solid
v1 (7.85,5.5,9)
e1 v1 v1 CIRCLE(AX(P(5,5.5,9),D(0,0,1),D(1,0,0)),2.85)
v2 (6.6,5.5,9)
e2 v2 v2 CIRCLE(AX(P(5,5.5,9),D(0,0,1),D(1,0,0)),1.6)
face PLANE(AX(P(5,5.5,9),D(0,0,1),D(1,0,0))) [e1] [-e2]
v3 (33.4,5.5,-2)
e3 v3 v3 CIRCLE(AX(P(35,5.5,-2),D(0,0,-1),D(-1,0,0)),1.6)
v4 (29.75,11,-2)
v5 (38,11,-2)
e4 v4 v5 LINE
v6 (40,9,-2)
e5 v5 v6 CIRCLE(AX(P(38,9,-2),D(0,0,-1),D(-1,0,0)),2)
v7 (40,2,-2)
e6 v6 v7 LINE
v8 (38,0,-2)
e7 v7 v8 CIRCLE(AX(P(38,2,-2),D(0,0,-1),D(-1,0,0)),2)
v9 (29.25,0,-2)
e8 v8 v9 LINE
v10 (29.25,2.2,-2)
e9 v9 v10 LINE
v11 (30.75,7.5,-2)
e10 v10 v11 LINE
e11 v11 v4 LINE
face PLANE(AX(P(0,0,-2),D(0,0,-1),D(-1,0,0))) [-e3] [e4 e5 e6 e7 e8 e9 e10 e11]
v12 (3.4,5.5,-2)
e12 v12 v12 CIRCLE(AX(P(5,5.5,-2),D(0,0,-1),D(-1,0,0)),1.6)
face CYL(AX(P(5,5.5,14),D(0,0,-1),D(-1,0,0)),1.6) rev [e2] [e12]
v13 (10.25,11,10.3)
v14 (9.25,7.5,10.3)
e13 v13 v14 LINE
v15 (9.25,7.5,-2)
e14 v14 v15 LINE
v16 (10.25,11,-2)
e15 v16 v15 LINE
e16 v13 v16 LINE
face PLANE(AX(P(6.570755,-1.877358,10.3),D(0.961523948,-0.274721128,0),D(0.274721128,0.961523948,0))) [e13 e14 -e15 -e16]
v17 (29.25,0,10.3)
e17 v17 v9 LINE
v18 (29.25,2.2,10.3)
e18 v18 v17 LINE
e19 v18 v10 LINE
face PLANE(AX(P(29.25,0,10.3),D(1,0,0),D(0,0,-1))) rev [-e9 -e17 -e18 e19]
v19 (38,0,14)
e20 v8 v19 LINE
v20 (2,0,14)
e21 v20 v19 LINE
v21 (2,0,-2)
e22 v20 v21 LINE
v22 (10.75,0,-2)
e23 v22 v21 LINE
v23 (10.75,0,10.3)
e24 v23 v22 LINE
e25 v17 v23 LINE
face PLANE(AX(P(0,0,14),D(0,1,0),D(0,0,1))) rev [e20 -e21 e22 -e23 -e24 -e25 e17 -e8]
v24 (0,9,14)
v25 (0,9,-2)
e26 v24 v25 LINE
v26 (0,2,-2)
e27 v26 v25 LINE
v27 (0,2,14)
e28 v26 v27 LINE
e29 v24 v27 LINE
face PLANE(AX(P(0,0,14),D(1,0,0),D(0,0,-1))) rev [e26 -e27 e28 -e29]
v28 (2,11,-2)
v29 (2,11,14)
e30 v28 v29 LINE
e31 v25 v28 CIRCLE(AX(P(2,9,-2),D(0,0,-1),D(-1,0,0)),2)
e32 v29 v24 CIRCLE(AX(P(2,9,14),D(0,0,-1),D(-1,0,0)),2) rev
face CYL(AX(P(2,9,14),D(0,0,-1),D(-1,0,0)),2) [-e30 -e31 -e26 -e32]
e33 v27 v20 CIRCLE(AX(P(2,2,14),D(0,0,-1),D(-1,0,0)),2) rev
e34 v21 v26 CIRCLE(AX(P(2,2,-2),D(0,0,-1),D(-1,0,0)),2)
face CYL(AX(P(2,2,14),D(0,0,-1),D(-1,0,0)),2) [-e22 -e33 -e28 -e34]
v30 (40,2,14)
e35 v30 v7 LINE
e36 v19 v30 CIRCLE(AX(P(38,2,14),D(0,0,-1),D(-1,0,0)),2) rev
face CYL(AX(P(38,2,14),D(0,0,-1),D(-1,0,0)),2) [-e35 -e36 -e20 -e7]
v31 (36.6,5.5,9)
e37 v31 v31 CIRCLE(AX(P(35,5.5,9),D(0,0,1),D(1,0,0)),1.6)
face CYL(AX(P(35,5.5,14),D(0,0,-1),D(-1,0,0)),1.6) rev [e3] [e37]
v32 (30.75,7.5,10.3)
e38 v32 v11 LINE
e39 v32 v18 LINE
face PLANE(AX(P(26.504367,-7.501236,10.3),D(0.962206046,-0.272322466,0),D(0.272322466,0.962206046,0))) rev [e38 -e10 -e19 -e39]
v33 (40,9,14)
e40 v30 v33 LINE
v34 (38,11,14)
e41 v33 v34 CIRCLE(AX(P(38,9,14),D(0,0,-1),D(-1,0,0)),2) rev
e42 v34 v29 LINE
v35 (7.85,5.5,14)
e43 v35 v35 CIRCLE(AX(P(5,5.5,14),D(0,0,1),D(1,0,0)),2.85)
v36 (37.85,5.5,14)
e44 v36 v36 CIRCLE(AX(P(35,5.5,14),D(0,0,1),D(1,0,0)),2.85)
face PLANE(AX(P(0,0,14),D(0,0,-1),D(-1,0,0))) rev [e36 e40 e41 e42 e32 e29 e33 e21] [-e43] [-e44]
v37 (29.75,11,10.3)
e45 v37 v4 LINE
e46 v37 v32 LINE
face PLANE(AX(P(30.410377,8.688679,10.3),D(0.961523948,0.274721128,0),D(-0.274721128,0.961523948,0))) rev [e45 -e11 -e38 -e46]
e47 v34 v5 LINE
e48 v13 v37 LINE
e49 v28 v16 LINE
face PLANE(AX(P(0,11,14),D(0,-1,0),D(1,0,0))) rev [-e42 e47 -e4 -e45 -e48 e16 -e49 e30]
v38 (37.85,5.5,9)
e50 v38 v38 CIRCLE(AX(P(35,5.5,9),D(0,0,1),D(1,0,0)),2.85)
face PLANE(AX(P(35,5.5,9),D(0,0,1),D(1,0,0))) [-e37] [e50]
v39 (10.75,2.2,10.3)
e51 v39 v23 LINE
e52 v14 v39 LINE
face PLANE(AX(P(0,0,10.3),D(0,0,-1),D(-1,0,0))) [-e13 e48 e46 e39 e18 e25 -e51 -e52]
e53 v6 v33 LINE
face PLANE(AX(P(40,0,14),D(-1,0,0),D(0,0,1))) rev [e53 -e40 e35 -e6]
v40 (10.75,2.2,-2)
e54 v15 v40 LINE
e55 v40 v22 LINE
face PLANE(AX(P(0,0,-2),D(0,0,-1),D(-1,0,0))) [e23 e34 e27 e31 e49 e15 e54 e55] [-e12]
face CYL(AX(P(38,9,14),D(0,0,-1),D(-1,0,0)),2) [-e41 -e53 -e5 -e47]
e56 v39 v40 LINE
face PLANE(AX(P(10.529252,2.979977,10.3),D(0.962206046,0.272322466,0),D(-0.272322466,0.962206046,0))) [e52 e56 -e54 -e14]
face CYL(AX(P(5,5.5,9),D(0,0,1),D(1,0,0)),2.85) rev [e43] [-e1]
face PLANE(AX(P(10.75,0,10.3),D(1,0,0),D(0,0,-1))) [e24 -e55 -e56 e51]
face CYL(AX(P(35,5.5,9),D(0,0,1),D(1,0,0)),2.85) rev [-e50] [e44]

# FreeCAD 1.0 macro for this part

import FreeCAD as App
import Part
import Sketcher

V = App.Vector


def edges_at(feature, points):
    """Names of the edges that pass closest to the given points."""
    edges = feature.Shape.Edges
    near = lambda p: min(range(len(edges)), key=lambda i: edges[i].distToShape(Part.Vertex(*p))[0])
    return sorted({f"Edge{near(p) + 1}" for p in points})


def add_polygon(sketch, points):
    """Adds a closed chain of lines whose ends are joined by coincident constraints."""
    first, n = sketch.GeometryCount, len(points)
    for a, b in zip(points, points[1:] + points[:1]):
        sketch.addGeometry(Part.LineSegment(App.Vector(*a, 0), App.Vector(*b, 0)), False)
    for i in range(n):
        sketch.addConstraint(Sketcher.Constraint("Coincident", first + i, 2, first + (i + 1) % n, 1))

doc = App.newDocument("Part")
params = doc.addObject("Spreadsheet::Sheet", "Params")
for row, (alias, value) in enumerate([
    ("sketch1_diameter", "3.2 mm"),
    ("sketch1_width", "40 mm"),
    ("sketch1_height", "11 mm"),
    ("pad1_length", "14 mm"),
    ("sketch2_width", "19.5 mm"),
    ("sketch2_width2", "18.5 mm"),
    ("sketch2_height", "2.2 mm"),
    ("pocket1_length", "10.3 mm"),
    ("sketch3_diameter", "5.7 mm"),
    ("pocket2_length", "5 mm"),
    ("sketch4_diameter", "3.2 mm"),
    ("sketch4_height", "11 mm"),
    ("sketch4_height2", "2.2 mm"),
    ("sketch4_width", "10.75 mm"),
    ("pad2_length", "2 mm"),
    ("fillet_radius", "2 mm"),
], start=1):
    params.set(f"A{row}", alias)
    params.set(f"B{row}", "=" + value)
    params.setAlias(f"B{row}", alias)

body = doc.addObject("PartDesign::Body", "Body")

# Sketch on XY plane
sketch1 = body.newObject("Sketcher::SketchObject", "Sketch")
sketch1.AttachmentSupport = (doc.getObject("XY_Plane"), [""])
sketch1.MapMode = "FlatFace"
add_polygon(sketch1, [(0, 11), (0, 0), (40, 0), (40, 11)])  # lines 0-3
sketch1.addGeometry(Part.Circle(V(5, 5.5, 0), V(0, 0, 1), 1.6), False)  # 4
sketch1.addGeometry(Part.Circle(V(35, 5.5, 0), V(0, 0, 1), 1.6), False)  # 5
sketch1.addConstraint(Sketcher.Constraint("Vertical", 0))
sketch1.addConstraint(Sketcher.Constraint("Horizontal", 1))
sketch1.addConstraint(Sketcher.Constraint("Vertical", 2))
sketch1.addConstraint(Sketcher.Constraint("Horizontal", 3))
sketch1.addConstraint(Sketcher.Constraint("Coincident", 0, 2, -1, 1))
sketch1.addConstraint(Sketcher.Constraint("Equal", 4, 5))
sketch1.addConstraint(Sketcher.Constraint("Horizontal", 4, 3, 5, 3))
sketch1.addConstraint(Sketcher.Constraint("Diameter", 4, 3.2))
sketch1.addConstraint(Sketcher.Constraint("DistanceX", 1, 1, 1, 2, 40.0))
sketch1.addConstraint(Sketcher.Constraint("DistanceY", 0, 2, 0, 1, 11.0))
sketch1.addConstraint(Sketcher.Constraint("DistanceX", -1, 1, 4, 3, 5.0))
sketch1.addConstraint(Sketcher.Constraint("DistanceX", -1, 1, 5, 3, 35.0))
sketch1.addConstraint(Sketcher.Constraint("DistanceY", -1, 1, 4, 3, 5.5))
sketch1.setExpression("Constraints[11]", "Params.sketch1_diameter")
sketch1.setExpression("Constraints[12]", "Params.sketch1_width")
sketch1.setExpression("Constraints[13]", "Params.sketch1_height")
pad1 = body.newObject("PartDesign::Pad", "Pad")
pad1.Profile = sketch1
pad1.setExpression("Length", "Params.pad1_length")

# Sketch on XY plane
sketch2 = body.newObject("Sketcher::SketchObject", "Sketch001")
sketch2.AttachmentSupport = (doc.getObject("XY_Plane"), [""])
sketch2.MapMode = "FlatFace"
add_polygon(sketch2, [(10.2, 11), (29.8, 11), (30.8, 7.5), (29.2, 2.2), (29.2, 0), (10.8, 0), (10.8, 2.2), (9.2, 7.5)])  # lines 0-7
sketch2.addConstraint(Sketcher.Constraint("Horizontal", 0))
sketch2.addConstraint(Sketcher.Constraint("Vertical", 3))
sketch2.addConstraint(Sketcher.Constraint("Horizontal", 4))
sketch2.addConstraint(Sketcher.Constraint("Vertical", 5))
sketch2.addConstraint(Sketcher.Constraint("PointOnObject", 3, 2, -1))
sketch2.addConstraint(Sketcher.Constraint("Horizontal", 2, 2, 5, 2))
sketch2.addConstraint(Sketcher.Constraint("Horizontal", 1, 2, 6, 2))
sketch2.addConstraint(Sketcher.Constraint("Equal", 2, 6))
sketch2.addConstraint(Sketcher.Constraint("Equal", 1, 7))
sketch2.addConstraint(Sketcher.Constraint("DistanceX", 0, 1, 0, 2, 19.5))
sketch2.addConstraint(Sketcher.Constraint("DistanceX", 4, 2, 4, 1, 18.5))
sketch2.addConstraint(Sketcher.Constraint("DistanceY", 3, 2, 3, 1, 2.2))
sketch2.addConstraint(Sketcher.Constraint("DistanceY", -1, 1, 0, 2, 11.0))
sketch2.addConstraint(Sketcher.Constraint("DistanceX", 0, 2, 1, 2, 1.0))
sketch2.addConstraint(Sketcher.Constraint("DistanceY", -1, 1, 1, 2, 7.5))
sketch2.addConstraint(Sketcher.Constraint("DistanceX", -1, 1, 0, 2, 29.75))
sketch2.setExpression("Constraints[17]", "Params.sketch2_width")
sketch2.setExpression("Constraints[18]", "Params.sketch2_width2")
sketch2.setExpression("Constraints[19]", "Params.sketch2_height")
pocket1 = body.newObject("PartDesign::Pocket", "Pocket")
pocket1.Profile = sketch2
pocket1.setExpression("Length", "Params.pocket1_length")
pocket1.Reversed = True

# Sketch on XY plane
sketch3 = body.newObject("Sketcher::SketchObject", "Sketch002")
sketch3.AttachmentSupport = (doc.getObject("XY_Plane"), [""])
sketch3.MapMode = "FlatFace"
sketch3.AttachmentOffset = App.Placement(V(0, 0, 14), App.Rotation())
sketch3.addGeometry(Part.Circle(V(5, 5.5, 0), V(0, 0, 1), 2.9), False)
sketch3.addGeometry(Part.Circle(V(35, 5.5, 0), V(0, 0, 1), 2.9), False)
sketch3.addConstraint(Sketcher.Constraint("Equal", 0, 1))
sketch3.addConstraint(Sketcher.Constraint("Horizontal", 0, 3, 1, 3))
sketch3.addConstraint(Sketcher.Constraint("Diameter", 0, 5.7))
sketch3.addConstraint(Sketcher.Constraint("DistanceX", -1, 1, 0, 3, 5.0))
sketch3.addConstraint(Sketcher.Constraint("DistanceX", -1, 1, 1, 3, 35.0))
sketch3.addConstraint(Sketcher.Constraint("DistanceY", -1, 1, 0, 3, 5.5))
sketch3.setExpression("Constraints[2]", "Params.sketch3_diameter")
pocket2 = body.newObject("PartDesign::Pocket", "Pocket001")
pocket2.Profile = sketch3
pocket2.setExpression("Length", "Params.pocket2_length")

# Sketch on XY plane
sketch4 = body.newObject("Sketcher::SketchObject", "Sketch003")
sketch4.AttachmentSupport = (doc.getObject("XY_Plane"), [""])
sketch4.MapMode = "FlatFace"
sketch4.AttachmentOffset = App.Placement(V(0, 0, -2), App.Rotation())
add_polygon(sketch4, [(10.2, 11), (9.2, 7.5), (10.8, 2.2), (10.8, 0), (0, 0), (0, 11)])  # lines 0-5
sketch4.addGeometry(Part.Circle(V(5, 5.5, 0), V(0, 0, 1), 1.6), False)  # 6
add_polygon(sketch4, [(30.8, 7.5), (29.8, 11), (40, 11), (40, 0), (29.2, 0), (29.2, 2.2)])  # lines 7-12
sketch4.addGeometry(Part.Circle(V(35, 5.5, 0), V(0, 0, 1), 1.6), False)  # 13
sketch4.addConstraint(Sketcher.Constraint("Vertical", 2))
sketch4.addConstraint(Sketcher.Constraint("Horizontal", 3))
sketch4.addConstraint(Sketcher.Constraint("Vertical", 4))
sketch4.addConstraint(Sketcher.Constraint("Horizontal", 5))
sketch4.addConstraint(Sketcher.Constraint("Horizontal", 8))
sketch4.addConstraint(Sketcher.Constraint("Vertical", 9))
sketch4.addConstraint(Sketcher.Constraint("Horizontal", 10))
sketch4.addConstraint(Sketcher.Constraint("Vertical", 11))
sketch4.addConstraint(Sketcher.Constraint("Coincident", 3, 2, -1, 1))
sketch4.addConstraint(Sketcher.Constraint("Equal", 6, 13))
sketch4.addConstraint(Sketcher.Constraint("PointOnObject", 9, 2, -1))
sketch4.addConstraint(Sketcher.Constraint("Horizontal", 6, 3, 13, 3))
sketch4.addConstraint(Sketcher.Constraint("Horizontal", 5, 2, 7, 2))
sketch4.addConstraint(Sketcher.Constraint("Horizontal", 1, 2, 11, 2))
sketch4.addConstraint(Sketcher.Constraint("Horizontal", 0, 2, 12, 2))
sketch4.addConstraint(Sketcher.Constraint("Equal", 5, 8))
sketch4.addConstraint(Sketcher.Constraint("Equal", 3, 10))
sketch4.addConstraint(Sketcher.Constraint("Equal", 0, 7))
sketch4.addConstraint(Sketcher.Constraint("Diameter", 6, 3.2))
sketch4.addConstraint(Sketcher.Constraint("DistanceY", 4, 1, 4, 2, 11.0))
sketch4.addConstraint(Sketcher.Constraint("DistanceY", 2, 2, 2, 1, 2.2))
sketch4.addConstraint(Sketcher.Constraint("DistanceX", -1, 1, 6, 3, 5.0))
sketch4.addConstraint(Sketcher.Constraint("DistanceX", -1, 1, 13, 3, 35.0))
sketch4.addConstraint(Sketcher.Constraint("DistanceX", -1, 1, 8, 2, 40.0))
sketch4.addConstraint(Sketcher.Constraint("DistanceY", 6, 3, 0, 2, 2.0))
sketch4.addConstraint(Sketcher.Constraint("DistanceX", 0, 2, 5, 2, 1.0))
sketch4.addConstraint(Sketcher.Constraint("DistanceX", 1, 2, 7, 2, 19.0))
sketch4.addConstraint(Sketcher.Constraint("DistanceX", 3, 2, 3, 1, 10.75))
sketch4.addConstraint(Sketcher.Constraint("DistanceY", -1, 1, 6, 3, 5.5))
sketch4.setExpression("Constraints[30]", "Params.sketch4_diameter")
sketch4.setExpression("Constraints[31]", "Params.sketch4_height")
sketch4.setExpression("Constraints[32]", "Params.sketch4_height2")
sketch4.setExpression("Constraints[39]", "Params.sketch4_width")
pad2 = body.newObject("PartDesign::Pad", "Pad001")
pad2.Profile = sketch4
pad2.setExpression("Length", "Params.pad2_length")
doc.recompute()

fillet = body.newObject("PartDesign::Fillet", "Fillet")
fillet.Base = (pad2, edges_at(pad2, [
    (0, 11, 6),
    (40, 11, 7),
    (40, 0, 7),
    (0, 0, 6),
]))
fillet.setExpression("Radius", "Params.fillet_radius")

doc.recompute()
